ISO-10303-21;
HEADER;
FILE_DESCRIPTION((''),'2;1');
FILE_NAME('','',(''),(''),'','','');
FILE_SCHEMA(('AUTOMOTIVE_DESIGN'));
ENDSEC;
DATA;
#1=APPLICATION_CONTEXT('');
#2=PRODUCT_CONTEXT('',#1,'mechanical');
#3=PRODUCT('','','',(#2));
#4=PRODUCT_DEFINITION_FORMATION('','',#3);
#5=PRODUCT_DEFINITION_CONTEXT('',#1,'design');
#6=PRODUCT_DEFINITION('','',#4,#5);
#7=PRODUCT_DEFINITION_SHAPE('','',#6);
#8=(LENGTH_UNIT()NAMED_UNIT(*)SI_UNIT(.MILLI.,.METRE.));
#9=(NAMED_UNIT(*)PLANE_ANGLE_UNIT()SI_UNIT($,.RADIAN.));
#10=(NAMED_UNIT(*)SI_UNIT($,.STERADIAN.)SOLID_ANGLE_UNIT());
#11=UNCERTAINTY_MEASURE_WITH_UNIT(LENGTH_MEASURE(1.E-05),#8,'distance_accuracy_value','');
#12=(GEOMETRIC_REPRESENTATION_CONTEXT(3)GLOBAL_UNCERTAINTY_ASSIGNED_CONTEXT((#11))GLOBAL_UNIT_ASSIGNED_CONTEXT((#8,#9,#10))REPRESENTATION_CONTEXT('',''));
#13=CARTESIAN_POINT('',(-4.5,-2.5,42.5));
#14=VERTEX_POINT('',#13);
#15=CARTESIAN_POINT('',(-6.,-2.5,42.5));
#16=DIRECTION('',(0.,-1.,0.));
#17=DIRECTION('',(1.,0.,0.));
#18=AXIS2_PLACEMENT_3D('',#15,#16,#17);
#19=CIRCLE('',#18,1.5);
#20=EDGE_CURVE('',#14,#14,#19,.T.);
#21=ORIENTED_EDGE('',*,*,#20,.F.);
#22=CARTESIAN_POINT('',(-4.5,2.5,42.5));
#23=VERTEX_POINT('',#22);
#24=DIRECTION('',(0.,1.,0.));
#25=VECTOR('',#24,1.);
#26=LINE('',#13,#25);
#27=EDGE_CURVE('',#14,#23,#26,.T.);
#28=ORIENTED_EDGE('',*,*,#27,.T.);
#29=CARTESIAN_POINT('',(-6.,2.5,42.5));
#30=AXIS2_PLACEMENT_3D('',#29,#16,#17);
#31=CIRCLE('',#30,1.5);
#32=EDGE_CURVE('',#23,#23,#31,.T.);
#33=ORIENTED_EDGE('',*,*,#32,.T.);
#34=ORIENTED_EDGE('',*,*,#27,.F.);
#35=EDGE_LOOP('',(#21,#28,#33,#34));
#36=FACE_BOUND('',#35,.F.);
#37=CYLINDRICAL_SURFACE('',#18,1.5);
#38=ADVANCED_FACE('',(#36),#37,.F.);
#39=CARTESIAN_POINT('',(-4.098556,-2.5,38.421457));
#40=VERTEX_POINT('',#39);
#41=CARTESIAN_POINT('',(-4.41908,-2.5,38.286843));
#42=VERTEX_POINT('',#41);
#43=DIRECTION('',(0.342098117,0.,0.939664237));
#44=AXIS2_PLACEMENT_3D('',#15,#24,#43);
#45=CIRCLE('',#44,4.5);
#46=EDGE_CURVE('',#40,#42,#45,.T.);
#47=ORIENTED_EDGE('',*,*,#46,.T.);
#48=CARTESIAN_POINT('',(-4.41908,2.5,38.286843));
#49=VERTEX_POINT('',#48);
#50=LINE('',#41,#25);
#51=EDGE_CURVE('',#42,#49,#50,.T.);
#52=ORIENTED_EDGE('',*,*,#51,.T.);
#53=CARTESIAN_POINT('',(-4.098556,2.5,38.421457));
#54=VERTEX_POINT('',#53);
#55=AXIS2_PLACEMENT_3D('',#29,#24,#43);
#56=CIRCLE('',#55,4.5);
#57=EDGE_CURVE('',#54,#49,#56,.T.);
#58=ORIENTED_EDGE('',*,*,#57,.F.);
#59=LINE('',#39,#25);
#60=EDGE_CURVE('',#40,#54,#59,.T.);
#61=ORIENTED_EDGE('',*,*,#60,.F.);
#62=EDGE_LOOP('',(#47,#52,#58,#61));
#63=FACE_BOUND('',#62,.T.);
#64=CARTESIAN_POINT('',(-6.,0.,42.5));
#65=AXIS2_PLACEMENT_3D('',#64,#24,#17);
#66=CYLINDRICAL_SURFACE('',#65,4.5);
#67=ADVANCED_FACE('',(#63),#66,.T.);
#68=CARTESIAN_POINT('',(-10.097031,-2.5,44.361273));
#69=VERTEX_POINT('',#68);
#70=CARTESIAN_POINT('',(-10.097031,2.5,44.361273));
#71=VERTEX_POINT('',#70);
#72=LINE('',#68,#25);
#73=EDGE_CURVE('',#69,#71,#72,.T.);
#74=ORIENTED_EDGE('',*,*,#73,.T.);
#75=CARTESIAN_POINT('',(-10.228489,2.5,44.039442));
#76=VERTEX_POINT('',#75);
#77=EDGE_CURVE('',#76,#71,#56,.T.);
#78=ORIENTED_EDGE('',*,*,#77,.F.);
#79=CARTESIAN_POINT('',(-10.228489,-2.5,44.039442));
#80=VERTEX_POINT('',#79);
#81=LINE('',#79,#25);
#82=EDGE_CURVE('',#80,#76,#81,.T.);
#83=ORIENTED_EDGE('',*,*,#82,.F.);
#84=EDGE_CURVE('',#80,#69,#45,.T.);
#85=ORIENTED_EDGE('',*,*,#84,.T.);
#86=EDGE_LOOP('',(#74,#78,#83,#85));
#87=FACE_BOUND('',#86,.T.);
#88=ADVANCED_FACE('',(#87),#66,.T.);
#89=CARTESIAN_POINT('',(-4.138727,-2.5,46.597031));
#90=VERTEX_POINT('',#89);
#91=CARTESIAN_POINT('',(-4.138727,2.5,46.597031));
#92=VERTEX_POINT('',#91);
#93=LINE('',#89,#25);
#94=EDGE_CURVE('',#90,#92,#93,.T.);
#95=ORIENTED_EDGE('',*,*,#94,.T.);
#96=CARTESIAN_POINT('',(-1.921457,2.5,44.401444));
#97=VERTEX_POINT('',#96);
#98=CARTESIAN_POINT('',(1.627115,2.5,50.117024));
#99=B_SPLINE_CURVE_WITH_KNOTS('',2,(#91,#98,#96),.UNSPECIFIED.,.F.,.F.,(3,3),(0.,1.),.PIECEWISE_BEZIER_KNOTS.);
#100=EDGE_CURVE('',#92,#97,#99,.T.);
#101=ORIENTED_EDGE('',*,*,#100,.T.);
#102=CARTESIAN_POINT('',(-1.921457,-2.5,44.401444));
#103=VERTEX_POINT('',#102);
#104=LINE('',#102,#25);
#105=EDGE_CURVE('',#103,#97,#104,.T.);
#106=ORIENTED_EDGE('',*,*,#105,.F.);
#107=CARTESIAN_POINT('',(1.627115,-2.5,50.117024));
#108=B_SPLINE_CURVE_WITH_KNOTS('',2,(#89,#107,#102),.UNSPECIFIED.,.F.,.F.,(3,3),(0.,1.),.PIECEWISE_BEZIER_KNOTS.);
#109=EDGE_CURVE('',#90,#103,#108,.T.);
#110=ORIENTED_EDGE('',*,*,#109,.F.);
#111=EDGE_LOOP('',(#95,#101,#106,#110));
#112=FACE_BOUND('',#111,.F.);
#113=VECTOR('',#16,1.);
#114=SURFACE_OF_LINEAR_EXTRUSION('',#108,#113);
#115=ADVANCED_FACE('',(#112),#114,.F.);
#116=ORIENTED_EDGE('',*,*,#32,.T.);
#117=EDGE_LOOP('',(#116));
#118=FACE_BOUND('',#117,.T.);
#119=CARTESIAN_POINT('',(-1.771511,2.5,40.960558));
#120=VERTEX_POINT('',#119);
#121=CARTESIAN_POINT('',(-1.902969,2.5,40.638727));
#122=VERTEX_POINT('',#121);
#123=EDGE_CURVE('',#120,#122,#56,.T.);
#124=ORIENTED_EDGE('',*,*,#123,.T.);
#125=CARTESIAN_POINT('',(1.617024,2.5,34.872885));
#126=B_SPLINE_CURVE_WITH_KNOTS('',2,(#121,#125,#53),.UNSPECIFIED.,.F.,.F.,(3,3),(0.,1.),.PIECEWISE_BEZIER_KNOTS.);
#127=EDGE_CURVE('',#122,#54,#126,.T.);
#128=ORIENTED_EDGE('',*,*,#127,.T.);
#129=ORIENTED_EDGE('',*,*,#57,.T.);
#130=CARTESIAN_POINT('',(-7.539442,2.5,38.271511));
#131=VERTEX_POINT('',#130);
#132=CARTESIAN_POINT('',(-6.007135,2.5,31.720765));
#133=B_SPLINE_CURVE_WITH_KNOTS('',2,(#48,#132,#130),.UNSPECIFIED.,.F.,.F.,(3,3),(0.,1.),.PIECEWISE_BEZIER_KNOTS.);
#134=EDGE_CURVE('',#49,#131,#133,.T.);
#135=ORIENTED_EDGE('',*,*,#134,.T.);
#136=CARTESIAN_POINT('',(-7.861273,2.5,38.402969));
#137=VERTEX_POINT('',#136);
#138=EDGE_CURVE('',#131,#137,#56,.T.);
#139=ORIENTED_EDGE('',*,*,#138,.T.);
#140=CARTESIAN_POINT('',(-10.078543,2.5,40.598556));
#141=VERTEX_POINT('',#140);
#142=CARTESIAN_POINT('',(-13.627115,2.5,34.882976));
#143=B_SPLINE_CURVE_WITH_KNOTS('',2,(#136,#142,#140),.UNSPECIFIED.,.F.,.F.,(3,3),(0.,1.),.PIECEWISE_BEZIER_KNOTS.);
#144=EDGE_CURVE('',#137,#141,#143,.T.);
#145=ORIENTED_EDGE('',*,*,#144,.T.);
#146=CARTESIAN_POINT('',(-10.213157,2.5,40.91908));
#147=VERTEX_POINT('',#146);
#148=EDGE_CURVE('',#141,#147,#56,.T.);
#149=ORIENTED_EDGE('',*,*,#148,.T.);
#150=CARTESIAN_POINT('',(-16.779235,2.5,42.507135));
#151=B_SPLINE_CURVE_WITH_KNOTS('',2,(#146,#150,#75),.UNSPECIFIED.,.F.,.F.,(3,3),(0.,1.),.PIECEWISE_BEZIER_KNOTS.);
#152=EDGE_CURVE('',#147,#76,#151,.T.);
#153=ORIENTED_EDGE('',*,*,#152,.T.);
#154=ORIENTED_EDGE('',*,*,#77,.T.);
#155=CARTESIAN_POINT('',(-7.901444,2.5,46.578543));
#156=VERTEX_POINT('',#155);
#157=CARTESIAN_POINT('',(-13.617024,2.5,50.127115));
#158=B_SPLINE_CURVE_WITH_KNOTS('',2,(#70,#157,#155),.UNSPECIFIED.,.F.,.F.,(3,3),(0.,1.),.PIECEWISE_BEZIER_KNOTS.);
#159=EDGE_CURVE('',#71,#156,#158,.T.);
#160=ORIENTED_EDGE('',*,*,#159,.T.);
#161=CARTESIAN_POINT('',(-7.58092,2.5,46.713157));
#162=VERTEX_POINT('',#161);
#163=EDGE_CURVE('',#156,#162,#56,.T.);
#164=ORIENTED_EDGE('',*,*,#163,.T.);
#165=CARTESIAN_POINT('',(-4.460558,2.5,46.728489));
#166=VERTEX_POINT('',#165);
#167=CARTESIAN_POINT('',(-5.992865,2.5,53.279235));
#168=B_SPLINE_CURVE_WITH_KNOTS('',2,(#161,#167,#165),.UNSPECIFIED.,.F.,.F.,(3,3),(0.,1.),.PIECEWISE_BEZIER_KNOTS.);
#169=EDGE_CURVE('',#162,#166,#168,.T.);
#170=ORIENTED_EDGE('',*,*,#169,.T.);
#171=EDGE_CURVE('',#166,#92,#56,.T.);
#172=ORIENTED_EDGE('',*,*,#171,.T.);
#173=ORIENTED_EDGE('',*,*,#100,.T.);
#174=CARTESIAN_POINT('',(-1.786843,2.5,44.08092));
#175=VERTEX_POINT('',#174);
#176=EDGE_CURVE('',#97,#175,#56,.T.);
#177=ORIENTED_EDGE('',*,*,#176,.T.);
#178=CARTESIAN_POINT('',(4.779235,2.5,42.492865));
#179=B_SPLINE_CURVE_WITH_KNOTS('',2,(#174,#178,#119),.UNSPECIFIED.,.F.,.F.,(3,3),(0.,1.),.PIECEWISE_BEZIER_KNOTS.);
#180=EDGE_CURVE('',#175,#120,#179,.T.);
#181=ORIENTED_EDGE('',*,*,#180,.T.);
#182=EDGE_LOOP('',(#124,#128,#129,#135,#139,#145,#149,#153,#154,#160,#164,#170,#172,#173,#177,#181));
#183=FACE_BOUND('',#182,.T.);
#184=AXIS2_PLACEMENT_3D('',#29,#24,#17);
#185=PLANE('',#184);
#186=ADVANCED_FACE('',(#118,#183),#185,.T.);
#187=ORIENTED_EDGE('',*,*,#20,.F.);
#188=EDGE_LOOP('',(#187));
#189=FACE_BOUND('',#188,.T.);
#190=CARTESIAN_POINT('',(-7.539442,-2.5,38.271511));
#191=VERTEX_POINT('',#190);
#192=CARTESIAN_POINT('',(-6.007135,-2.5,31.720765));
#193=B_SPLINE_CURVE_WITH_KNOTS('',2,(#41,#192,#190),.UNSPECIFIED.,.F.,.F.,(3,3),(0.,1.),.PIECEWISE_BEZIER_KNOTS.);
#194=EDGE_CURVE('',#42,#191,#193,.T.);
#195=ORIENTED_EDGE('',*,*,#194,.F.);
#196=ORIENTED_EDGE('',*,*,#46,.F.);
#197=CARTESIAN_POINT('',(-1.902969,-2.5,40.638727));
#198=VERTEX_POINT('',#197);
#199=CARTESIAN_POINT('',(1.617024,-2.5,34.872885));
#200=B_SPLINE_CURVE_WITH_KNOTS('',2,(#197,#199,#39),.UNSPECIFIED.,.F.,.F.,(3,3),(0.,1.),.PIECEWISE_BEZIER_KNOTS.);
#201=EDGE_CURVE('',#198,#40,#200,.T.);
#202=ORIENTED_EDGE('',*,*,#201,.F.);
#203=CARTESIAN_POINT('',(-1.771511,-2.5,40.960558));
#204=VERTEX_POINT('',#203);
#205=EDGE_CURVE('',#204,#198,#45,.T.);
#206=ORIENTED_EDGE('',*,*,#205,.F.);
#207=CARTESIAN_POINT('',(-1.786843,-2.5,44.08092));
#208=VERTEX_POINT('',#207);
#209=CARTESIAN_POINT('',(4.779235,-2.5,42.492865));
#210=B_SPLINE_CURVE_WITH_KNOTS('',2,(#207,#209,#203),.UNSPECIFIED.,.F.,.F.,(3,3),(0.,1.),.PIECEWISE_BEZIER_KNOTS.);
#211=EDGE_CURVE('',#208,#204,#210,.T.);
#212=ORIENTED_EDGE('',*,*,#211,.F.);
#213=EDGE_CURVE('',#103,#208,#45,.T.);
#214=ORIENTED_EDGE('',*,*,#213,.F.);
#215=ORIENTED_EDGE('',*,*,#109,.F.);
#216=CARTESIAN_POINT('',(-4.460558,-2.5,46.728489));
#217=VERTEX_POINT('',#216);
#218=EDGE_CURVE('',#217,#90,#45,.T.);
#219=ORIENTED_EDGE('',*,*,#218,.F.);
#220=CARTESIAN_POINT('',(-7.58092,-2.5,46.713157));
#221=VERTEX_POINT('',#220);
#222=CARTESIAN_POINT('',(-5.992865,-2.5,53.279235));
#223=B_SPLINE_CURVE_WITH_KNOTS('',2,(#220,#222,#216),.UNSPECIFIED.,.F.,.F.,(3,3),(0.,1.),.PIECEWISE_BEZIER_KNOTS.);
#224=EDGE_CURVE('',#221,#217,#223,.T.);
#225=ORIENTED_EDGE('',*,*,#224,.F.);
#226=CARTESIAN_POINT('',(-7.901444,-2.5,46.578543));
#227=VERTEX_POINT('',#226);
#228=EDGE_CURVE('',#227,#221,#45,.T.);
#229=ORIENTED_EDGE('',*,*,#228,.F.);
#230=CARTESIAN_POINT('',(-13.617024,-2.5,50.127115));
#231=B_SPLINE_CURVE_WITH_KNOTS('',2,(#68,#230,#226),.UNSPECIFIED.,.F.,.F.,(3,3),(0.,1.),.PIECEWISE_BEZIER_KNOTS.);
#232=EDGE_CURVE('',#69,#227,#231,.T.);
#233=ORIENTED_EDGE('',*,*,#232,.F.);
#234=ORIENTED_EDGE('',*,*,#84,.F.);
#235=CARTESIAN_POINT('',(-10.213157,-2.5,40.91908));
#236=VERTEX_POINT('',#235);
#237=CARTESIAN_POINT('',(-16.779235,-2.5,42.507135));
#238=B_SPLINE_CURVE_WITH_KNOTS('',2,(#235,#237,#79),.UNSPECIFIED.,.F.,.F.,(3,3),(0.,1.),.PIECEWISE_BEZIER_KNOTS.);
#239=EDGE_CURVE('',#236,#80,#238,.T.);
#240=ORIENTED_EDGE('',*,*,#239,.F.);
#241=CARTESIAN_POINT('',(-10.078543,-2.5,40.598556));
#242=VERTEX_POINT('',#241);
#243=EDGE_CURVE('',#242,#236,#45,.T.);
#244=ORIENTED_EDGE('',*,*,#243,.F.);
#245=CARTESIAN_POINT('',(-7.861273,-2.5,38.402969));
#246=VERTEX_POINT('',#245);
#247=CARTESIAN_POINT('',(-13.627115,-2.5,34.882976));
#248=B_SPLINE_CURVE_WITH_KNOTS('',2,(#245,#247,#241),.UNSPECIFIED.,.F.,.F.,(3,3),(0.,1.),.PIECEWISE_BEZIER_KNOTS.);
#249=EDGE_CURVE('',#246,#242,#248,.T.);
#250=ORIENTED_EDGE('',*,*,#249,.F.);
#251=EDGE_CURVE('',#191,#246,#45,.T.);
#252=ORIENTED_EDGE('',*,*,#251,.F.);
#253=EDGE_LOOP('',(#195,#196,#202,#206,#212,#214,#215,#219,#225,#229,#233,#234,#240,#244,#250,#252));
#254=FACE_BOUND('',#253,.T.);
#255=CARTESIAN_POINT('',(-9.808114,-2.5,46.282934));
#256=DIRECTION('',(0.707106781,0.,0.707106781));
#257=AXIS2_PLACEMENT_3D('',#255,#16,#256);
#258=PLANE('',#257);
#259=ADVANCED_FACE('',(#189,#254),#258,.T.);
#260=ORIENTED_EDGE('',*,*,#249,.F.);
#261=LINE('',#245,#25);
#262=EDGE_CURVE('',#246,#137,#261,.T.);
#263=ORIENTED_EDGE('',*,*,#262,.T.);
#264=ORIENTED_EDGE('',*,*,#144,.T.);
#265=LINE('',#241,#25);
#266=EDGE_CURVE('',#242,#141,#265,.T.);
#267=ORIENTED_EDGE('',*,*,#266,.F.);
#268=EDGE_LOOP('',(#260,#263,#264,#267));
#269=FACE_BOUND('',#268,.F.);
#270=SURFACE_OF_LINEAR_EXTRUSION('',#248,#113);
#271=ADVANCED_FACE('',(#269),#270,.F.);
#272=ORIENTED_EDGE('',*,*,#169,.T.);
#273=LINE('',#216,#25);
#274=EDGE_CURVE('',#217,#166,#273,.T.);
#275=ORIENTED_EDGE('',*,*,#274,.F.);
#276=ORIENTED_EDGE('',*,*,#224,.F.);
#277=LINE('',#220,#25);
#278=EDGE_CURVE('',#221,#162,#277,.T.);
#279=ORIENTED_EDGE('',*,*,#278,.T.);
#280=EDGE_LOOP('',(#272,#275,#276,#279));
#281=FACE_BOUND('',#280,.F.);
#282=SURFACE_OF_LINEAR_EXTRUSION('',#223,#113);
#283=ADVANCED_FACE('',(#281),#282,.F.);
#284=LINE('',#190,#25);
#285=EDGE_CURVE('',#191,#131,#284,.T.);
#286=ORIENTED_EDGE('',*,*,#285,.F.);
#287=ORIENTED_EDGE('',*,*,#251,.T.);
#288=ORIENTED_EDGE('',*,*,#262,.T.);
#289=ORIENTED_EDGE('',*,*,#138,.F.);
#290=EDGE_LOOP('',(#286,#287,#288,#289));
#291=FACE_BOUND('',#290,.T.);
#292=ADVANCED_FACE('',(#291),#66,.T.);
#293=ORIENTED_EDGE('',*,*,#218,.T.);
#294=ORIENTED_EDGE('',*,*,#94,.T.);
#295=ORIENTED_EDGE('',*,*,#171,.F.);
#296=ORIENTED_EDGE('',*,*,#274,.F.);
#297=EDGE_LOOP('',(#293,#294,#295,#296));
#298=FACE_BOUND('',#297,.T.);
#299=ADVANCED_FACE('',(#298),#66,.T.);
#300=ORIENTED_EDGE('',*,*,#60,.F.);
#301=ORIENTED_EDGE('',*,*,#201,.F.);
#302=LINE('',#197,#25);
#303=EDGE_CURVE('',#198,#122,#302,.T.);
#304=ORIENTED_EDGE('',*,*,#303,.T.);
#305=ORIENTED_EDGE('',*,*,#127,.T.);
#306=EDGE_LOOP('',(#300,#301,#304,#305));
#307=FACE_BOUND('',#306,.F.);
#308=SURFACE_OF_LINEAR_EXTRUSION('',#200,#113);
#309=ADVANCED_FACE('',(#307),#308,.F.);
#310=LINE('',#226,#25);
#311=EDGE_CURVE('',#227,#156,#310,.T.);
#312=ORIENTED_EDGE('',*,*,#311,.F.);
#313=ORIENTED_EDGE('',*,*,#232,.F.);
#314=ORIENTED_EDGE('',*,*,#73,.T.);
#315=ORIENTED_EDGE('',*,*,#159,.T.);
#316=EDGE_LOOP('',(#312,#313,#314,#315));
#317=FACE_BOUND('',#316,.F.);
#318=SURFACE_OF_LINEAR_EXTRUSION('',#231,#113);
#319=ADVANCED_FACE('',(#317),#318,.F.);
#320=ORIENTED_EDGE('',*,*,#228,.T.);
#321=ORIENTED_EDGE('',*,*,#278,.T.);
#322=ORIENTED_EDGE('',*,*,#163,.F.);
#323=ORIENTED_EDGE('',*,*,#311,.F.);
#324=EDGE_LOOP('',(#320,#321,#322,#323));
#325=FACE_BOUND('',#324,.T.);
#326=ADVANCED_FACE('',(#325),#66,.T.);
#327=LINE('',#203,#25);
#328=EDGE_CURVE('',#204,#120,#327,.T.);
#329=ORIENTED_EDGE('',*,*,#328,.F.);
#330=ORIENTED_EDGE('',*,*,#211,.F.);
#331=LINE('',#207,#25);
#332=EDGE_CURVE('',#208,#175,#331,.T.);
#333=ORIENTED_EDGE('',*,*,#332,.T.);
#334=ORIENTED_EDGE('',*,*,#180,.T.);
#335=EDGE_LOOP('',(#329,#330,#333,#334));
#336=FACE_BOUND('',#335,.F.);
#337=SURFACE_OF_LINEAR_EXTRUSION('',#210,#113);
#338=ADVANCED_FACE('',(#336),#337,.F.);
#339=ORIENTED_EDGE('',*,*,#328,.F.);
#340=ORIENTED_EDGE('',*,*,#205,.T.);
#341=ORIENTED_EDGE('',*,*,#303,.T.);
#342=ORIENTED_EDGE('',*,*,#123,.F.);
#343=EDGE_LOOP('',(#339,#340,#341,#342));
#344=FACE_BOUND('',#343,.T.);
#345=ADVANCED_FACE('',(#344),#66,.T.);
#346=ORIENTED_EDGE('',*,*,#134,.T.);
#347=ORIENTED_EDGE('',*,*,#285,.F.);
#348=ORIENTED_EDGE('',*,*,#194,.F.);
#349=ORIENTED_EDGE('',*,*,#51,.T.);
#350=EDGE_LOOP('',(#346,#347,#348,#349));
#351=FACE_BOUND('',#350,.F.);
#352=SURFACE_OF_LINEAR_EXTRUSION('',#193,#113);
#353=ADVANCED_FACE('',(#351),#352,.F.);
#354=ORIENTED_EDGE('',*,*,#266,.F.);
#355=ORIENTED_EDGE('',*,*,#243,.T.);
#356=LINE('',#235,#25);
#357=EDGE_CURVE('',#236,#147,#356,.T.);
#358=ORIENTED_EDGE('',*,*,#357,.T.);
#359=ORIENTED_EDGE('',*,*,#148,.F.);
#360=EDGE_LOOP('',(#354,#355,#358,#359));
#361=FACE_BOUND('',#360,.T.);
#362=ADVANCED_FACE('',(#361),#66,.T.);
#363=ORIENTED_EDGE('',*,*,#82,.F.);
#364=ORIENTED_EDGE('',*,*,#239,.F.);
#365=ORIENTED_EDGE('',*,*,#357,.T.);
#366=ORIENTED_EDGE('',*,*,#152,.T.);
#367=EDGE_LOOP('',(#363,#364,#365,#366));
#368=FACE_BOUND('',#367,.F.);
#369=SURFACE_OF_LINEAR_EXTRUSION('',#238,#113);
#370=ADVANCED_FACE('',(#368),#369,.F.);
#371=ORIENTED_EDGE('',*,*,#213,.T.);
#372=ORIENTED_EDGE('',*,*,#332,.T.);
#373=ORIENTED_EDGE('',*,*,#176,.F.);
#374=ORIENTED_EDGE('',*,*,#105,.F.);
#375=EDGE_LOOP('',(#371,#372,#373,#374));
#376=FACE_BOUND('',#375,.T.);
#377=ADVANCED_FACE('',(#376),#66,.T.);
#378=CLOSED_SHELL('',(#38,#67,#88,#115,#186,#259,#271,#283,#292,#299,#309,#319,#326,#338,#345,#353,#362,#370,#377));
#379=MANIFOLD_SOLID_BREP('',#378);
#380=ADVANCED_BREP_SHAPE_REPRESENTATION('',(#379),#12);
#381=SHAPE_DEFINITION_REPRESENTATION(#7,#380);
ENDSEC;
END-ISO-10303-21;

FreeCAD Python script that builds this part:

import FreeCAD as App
import Part
import Sketcher

V = App.Vector
Q = App.Units.Quantity

doc = App.newDocument("Part")
body = doc.addObject("PartDesign::Body", "Body")

sketch1 = body.newObject("Sketcher::SketchObject", "Sketch")
sketch1.AttachmentSupport = (doc.getObject("XZ_Plane"), [""])
sketch1.MapMode = "FlatFace"
sketch1.addGeometry(Part.Circle(V(-6, 42.5, 0), V(0, 0, 1), 4.5), False)
sketch1.addConstraint([
    Sketcher.Constraint("Diameter", 0, Q("9 mm")),
    Sketcher.Constraint("DistanceX", 0, 3, -1, 1, Q("6 mm")),
    Sketcher.Constraint("DistanceY", -1, 1, 0, 3, Q("42.5 mm")),
])
pad1 = body.newObject("PartDesign::Pad", "Pad")
pad1.Profile = sketch1
pad1.Length = 5
pad1.Midplane = True

sketch2 = body.newObject("Sketcher::SketchObject", "Sketch001")
sketch2.AttachmentSupport = (doc.getObject("XZ_Plane"), [""])
sketch2.MapMode = "FlatFace"
sketch2.AttachmentOffset = App.Placement(V(0, 0, 2.5), App.Rotation())
sketch2.addGeometry([
    Part.LineSegment(V(-7.58092, 46.713157, 0), V(-4.460558, 46.728489, 0)),
    Part.BSplineCurve([V(-7.58092, 46.713157, 0), V(-5.992865, 53.279235, 0), V(-4.460558, 46.728489, 0)], [3, 3], [0, 1], False, 2, [1, 1, 1], False),
], False)
sketch2.addConstraint([
    Sketcher.Constraint("Block", 1),
    Sketcher.Constraint("Coincident", 0, 1, 1, 1),
    Sketcher.Constraint("Coincident", 1, 2, 0, 2),
])
pad2 = body.newObject("PartDesign::Pad", "Pad001")
pad2.Profile = sketch2
pad2.Length = 5
pad2.Reversed = True
doc.recompute()

datumline = body.newObject("PartDesign::Line", "DatumLine")
datumline.Placement = App.Placement(V(-6, 0, 42.5), App.Rotation(V(0, 0, 1), V(0, 1, 0)))
polarpattern = body.newObject("PartDesign::PolarPattern", "PolarPattern")
polarpattern.Originals = [pad2]
polarpattern.Axis = (datumline, [""])
polarpattern.Angle = 360
polarpattern.Occurrences = 8
body.Tip = polarpattern

sketch3 = body.newObject("Sketcher::SketchObject", "Sketch002")
sketch3.AttachmentSupport = (doc.getObject("XZ_Plane"), [""])
sketch3.MapMode = "FlatFace"
sketch3.AttachmentOffset = App.Placement(V(0, 0, 2.5), App.Rotation())
sketch3.addGeometry(Part.Circle(V(-6, 42.5, 0), V(0, 0, 1), 1.5), False)
sketch3.addConstraint([
    Sketcher.Constraint("Diameter", 0, Q("3 mm")),
    Sketcher.Constraint("DistanceX", 0, 3, -1, 1, Q("6 mm")),
    Sketcher.Constraint("DistanceY", -1, 1, 0, 3, Q("42.5 mm")),
])
pocket1 = body.newObject("PartDesign::Pocket", "Pocket")
pocket1.Profile = sketch3
pocket1.Length = 5

doc.recompute()
